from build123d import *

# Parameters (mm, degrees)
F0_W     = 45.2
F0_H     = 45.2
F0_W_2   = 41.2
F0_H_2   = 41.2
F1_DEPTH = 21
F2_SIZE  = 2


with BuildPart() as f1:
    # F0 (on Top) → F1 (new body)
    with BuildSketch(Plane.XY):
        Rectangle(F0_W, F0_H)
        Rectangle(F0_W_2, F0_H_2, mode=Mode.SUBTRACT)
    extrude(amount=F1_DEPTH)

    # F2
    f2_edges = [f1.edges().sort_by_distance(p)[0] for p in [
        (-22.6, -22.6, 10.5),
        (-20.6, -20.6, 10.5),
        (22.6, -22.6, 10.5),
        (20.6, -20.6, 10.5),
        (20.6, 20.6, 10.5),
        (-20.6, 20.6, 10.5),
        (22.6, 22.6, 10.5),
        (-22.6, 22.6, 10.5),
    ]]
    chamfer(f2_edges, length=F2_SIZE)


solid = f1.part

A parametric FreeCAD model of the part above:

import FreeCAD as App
import Part
import Sketcher


def edges_at(feature, points):
    """Names of the edges that pass closest to the given points."""
    edges = feature.Shape.Edges
    near = lambda p: min(range(len(edges)), key=lambda i: edges[i].distToShape(Part.Vertex(*p))[0])
    return sorted({f"Edge{near(p) + 1}" for p in points})


def add_polygon(sketch, points):
    """Adds a closed chain of lines whose ends are joined by coincident constraints."""
    first, n = sketch.GeometryCount, len(points)
    for a, b in zip(points, points[1:] + points[:1]):
        sketch.addGeometry(Part.LineSegment(App.Vector(*a, 0), App.Vector(*b, 0)), False)
    for i in range(n):
        sketch.addConstraint(Sketcher.Constraint("Coincident", first + i, 2, first + (i + 1) % n, 1))

doc = App.newDocument("Part")
body = doc.addObject("PartDesign::Body", "Body")

# Sketch on XY plane
sketch1 = body.newObject("Sketcher::SketchObject", "Sketch")
sketch1.AttachmentSupport = (doc.getObject("XY_Plane"), [""])
sketch1.MapMode = "FlatFace"
add_polygon(sketch1, [(-22.6, 22.6), (-22.6, -22.6), (22.6, -22.6), (22.6, 22.6)])  # lines 0-3
add_polygon(sketch1, [(20.6, -20.6), (-20.6, -20.6), (-20.6, 20.6), (20.6, 20.6)])  # lines 4-7
sketch1.addConstraint([
    Sketcher.Constraint("Vertical", 0),
    Sketcher.Constraint("Horizontal", 1),
    Sketcher.Constraint("Vertical", 2),
    Sketcher.Constraint("Horizontal", 3),
    Sketcher.Constraint("Horizontal", 4),
    Sketcher.Constraint("Vertical", 5),
    Sketcher.Constraint("Horizontal", 6),
    Sketcher.Constraint("Vertical", 7),
    Sketcher.Constraint("Symmetric", 0, 2, 2, 2, -1, 1),
    Sketcher.Constraint("Symmetric", 4, 2, 6, 2, -1, 1),
    Sketcher.Constraint("Equal", 3, 0),
    Sketcher.Constraint("Equal", 6, 5),
    Sketcher.Constraint("DistanceX", 1, 1, 1, 2, 45.2),
    Sketcher.Constraint("DistanceX", 4, 2, 4, 1, 41.2),
])
pad1 = body.newObject("PartDesign::Pad", "Pad")
pad1.Profile = sketch1
pad1.Length = 21
doc.recompute()

chamfer = body.newObject("PartDesign::Chamfer", "Chamfer")
chamfer.Base = (pad1, edges_at(pad1, [
    (-22.6, -22.6, 10.5),
    (-20.6, -20.6, 10.5),
    (22.6, -22.6, 10.5),
    (20.6, -20.6, 10.5),
    (20.6, 20.6, 10.5),
    (-20.6, 20.6, 10.5),
    (22.6, 22.6, 10.5),
    (-22.6, 22.6, 10.5),
]))
chamfer.Size = 2

doc.recompute()
